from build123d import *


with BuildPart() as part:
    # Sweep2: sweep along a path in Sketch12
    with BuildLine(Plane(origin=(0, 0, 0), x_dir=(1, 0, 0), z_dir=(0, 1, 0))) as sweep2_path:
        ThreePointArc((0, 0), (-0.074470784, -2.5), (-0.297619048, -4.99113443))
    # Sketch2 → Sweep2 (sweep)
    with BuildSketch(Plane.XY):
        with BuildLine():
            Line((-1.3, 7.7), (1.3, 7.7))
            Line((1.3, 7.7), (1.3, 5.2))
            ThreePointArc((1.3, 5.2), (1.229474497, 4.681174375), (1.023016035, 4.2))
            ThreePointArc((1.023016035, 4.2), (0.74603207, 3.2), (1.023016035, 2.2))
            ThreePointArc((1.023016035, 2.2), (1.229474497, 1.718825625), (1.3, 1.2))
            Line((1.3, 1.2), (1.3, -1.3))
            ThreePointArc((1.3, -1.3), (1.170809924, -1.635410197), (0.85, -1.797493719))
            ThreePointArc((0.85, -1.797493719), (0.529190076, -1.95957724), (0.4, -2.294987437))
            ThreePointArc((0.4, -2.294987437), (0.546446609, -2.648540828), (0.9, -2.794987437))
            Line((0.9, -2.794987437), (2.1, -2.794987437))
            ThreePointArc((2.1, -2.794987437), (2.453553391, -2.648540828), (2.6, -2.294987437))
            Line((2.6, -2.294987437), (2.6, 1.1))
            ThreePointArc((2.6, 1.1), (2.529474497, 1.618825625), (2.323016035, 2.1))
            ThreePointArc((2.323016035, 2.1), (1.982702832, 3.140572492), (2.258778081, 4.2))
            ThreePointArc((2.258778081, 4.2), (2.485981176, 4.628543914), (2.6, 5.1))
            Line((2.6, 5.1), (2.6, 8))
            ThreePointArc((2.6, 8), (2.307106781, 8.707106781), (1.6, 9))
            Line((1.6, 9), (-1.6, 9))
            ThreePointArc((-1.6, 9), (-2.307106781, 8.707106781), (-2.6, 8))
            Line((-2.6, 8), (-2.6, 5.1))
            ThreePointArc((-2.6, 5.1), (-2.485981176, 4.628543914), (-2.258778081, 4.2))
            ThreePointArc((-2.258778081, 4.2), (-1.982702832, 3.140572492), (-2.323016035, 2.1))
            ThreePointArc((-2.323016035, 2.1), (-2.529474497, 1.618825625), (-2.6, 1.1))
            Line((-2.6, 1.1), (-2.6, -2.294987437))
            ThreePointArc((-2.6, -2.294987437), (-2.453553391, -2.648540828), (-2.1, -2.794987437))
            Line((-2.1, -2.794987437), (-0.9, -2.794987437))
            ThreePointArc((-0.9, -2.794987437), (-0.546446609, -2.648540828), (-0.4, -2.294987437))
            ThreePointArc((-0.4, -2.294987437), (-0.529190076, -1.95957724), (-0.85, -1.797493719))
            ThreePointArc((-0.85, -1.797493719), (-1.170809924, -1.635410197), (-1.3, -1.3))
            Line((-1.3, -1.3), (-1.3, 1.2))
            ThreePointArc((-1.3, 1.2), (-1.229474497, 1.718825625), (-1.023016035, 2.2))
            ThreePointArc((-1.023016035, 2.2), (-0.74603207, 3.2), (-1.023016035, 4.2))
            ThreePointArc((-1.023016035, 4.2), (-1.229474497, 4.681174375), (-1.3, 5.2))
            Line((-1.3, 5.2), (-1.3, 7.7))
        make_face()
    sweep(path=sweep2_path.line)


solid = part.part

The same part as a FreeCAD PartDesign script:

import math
import FreeCAD as App
import Part
import Sketcher
Q = App.Units.Quantity

doc = App.newDocument("Part")
params = doc.addObject("Spreadsheet::Sheet", "Params")
for row, (alias, value) in enumerate([
    ("sketch1_radius", "1 mm"),
    ("sketch1_radius2", "0.5 mm"),
    ("sketch1_width", "2.6 mm"),
    ("sketch1_width2", "1.2 mm"),
    ("sketch1_width3", "3.2 mm"),
    ("sketch2_radius", "42 mm"),
], start=1):
    params.set(f"A{row}", alias)
    params.set(f"B{row}", "=" + value)
    params.setAlias(f"B{row}", alias)

body = doc.addObject("PartDesign::Body", "Body")

# Sketch on XY plane
sketch1 = body.newObject("Sketcher::SketchObject", "Sketch")
sketch1.AttachmentSupport = (doc.getObject("XY_Plane"), [""])
sketch1.MapMode = "FlatFace"
sketch1.addGeometry(Part.LineSegment(App.Vector(-1.3, 7.7, 0), App.Vector(1.3, 7.7, 0)), False)
sketch1.addGeometry(Part.LineSegment(App.Vector(1.3, 7.7, 0), App.Vector(1.3, 5.2, 0)), False)
sketch1.addGeometry(Part.ArcOfCircle(Part.Circle(App.Vector(-0.643651, 5.2, 0), App.Vector(0, 0, 1), 1.943651), math.radians(-30.963756), math.radians(0)), False)
sketch1.addGeometry(Part.ArcOfCircle(Part.Circle(App.Vector(2.689683, 3.2, 0), App.Vector(0, 0, 1), 1.943651), math.radians(149.036243), math.radians(210.963757)), False)
sketch1.addGeometry(Part.ArcOfCircle(Part.Circle(App.Vector(-0.643651, 1.2, 0), App.Vector(0, 0, 1), 1.943651), math.radians(0), math.radians(30.963756)), False)
sketch1.addGeometry(Part.LineSegment(App.Vector(1.3, 1.2, 0), App.Vector(1.3, -1.3, 0)), False)
sketch1.addGeometry(Part.ArcOfCircle(Part.Circle(App.Vector(0.8, -1.3, 0), App.Vector(0, 0, 1), 0.5), math.radians(-84.260829), math.radians(0)), False)
sketch1.addGeometry(Part.ArcOfCircle(Part.Circle(App.Vector(0.9, -2.294987, 0), App.Vector(0, 0, 1), 0.5), math.radians(95.73917), math.radians(180)), False)
sketch1.addGeometry(Part.ArcOfCircle(Part.Circle(App.Vector(0.9, -2.294987, 0), App.Vector(0, 0, 1), 0.5), math.radians(180), math.radians(270)), False)
sketch1.addGeometry(Part.LineSegment(App.Vector(0.9, -2.794987, 0), App.Vector(2.1, -2.794987, 0)), False)
sketch1.addGeometry(Part.ArcOfCircle(Part.Circle(App.Vector(2.1, -2.294987, 0), App.Vector(0, 0, 1), 0.5), math.radians(-90), math.radians(0)), False)
sketch1.addGeometry(Part.LineSegment(App.Vector(2.6, -2.294987, 0), App.Vector(2.6, 1.1, 0)), False)
sketch1.addGeometry(Part.ArcOfCircle(Part.Circle(App.Vector(0.656349, 1.1, 0), App.Vector(0, 0, 1), 1.943651), math.radians(0), math.radians(30.963756)), False)
sketch1.addGeometry(Part.ArcOfCircle(Part.Circle(App.Vector(3.925445, 3.2, 0), App.Vector(0, 0, 1), 1.943651), math.radians(149.036243), math.radians(214.467963)), False)
sketch1.addGeometry(Part.ArcOfCircle(Part.Circle(App.Vector(0.668567, 5.31759, 0), App.Vector(0, 0, 1), 1.943651), math.radians(-35.099303), math.radians(-6.427686)), False)
sketch1.addGeometry(Part.LineSegment(App.Vector(2.6, 5.1, 0), App.Vector(2.6, 8, 0)), False)
sketch1.addGeometry(Part.ArcOfCircle(Part.Circle(App.Vector(1.6, 8, 0), App.Vector(0, 0, 1), 1), math.radians(0), math.radians(90)), False)
sketch1.addGeometry(Part.LineSegment(App.Vector(1.6, 9, 0), App.Vector(-1.6, 9, 0)), False)
sketch1.addGeometry(Part.ArcOfCircle(Part.Circle(App.Vector(-1.6, 8, 0), App.Vector(0, 0, 1), 1), math.radians(90), math.radians(180)), False)
sketch1.addGeometry(Part.LineSegment(App.Vector(-2.6, 8, 0), App.Vector(-2.6, 5.1, 0)), False)
sketch1.addGeometry(Part.ArcOfCircle(Part.Circle(App.Vector(-0.668567, 5.31759, 0), App.Vector(0, 0, 1), 1.943651), math.radians(-173.572314), math.radians(-144.900697)), False)
sketch1.addGeometry(Part.ArcOfCircle(Part.Circle(App.Vector(-3.925445, 3.2, 0), App.Vector(0, 0, 1), 1.943651), math.radians(-34.467963), math.radians(30.963757)), False)
sketch1.addGeometry(Part.ArcOfCircle(Part.Circle(App.Vector(-0.656349, 1.1, 0), App.Vector(0, 0, 1), 1.943651), math.radians(149.036244), math.radians(180)), False)
sketch1.addGeometry(Part.LineSegment(App.Vector(-2.6, 1.1, 0), App.Vector(-2.6, -2.294987, 0)), False)
sketch1.addGeometry(Part.ArcOfCircle(Part.Circle(App.Vector(-2.1, -2.294987, 0), App.Vector(0, 0, 1), 0.5), math.radians(180), math.radians(270)), False)
sketch1.addGeometry(Part.LineSegment(App.Vector(-2.1, -2.794987, 0), App.Vector(-0.9, -2.794987, 0)), False)
sketch1.addGeometry(Part.ArcOfCircle(Part.Circle(App.Vector(-0.9, -2.294987, 0), App.Vector(0, 0, 1), 0.5), math.radians(-90), math.radians(0)), False)
sketch1.addGeometry(Part.ArcOfCircle(Part.Circle(App.Vector(-0.9, -2.294987, 0), App.Vector(0, 0, 1), 0.5), math.radians(0), math.radians(84.26083)), False)
sketch1.addGeometry(Part.ArcOfCircle(Part.Circle(App.Vector(-0.8, -1.3, 0), App.Vector(0, 0, 1), 0.5), math.radians(180), math.radians(264.260829)), False)
sketch1.addGeometry(Part.LineSegment(App.Vector(-1.3, -1.3, 0), App.Vector(-1.3, 1.2, 0)), False)
sketch1.addGeometry(Part.ArcOfCircle(Part.Circle(App.Vector(0.643651, 1.2, 0), App.Vector(0, 0, 1), 1.943651), math.radians(149.036244), math.radians(180)), False)
sketch1.addGeometry(Part.ArcOfCircle(Part.Circle(App.Vector(-2.689683, 3.2, 0), App.Vector(0, 0, 1), 1.943651), math.radians(-30.963757), math.radians(30.963757)), False)
sketch1.addGeometry(Part.ArcOfCircle(Part.Circle(App.Vector(0.643651, 5.2, 0), App.Vector(0, 0, 1), 1.943651), math.radians(-180), math.radians(-149.036244)), False)
sketch1.addGeometry(Part.LineSegment(App.Vector(-1.3, 5.2, 0), App.Vector(-1.3, 7.7, 0)), False)
sketch1.addConstraint(Sketcher.Constraint("Coincident", 0, 2, 1, 1))
sketch1.addConstraint(Sketcher.Constraint("Tangent", 1, 2, 2, 2))
sketch1.addConstraint(Sketcher.Constraint("Tangent", 2, 1, 3, 1))
sketch1.addConstraint(Sketcher.Constraint("Tangent", 3, 2, 4, 2))
sketch1.addConstraint(Sketcher.Constraint("Tangent", 4, 1, 5, 1))
sketch1.addConstraint(Sketcher.Constraint("Tangent", 5, 2, 6, 2))
sketch1.addConstraint(Sketcher.Constraint("Tangent", 6, 1, 7, 1))
sketch1.addConstraint(Sketcher.Constraint("Tangent", 7, 2, 8, 1))
sketch1.addConstraint(Sketcher.Constraint("Tangent", 8, 2, 9, 1))
sketch1.addConstraint(Sketcher.Constraint("Tangent", 9, 2, 10, 1))
sketch1.addConstraint(Sketcher.Constraint("Tangent", 10, 2, 11, 1))
sketch1.addConstraint(Sketcher.Constraint("Tangent", 11, 2, 12, 1))
sketch1.addConstraint(Sketcher.Constraint("Coincident", 12, 2, 13, 2))
sketch1.addConstraint(Sketcher.Constraint("Coincident", 13, 1, 14, 1))
sketch1.addConstraint(Sketcher.Constraint("Coincident", 14, 2, 15, 1))
sketch1.addConstraint(Sketcher.Constraint("Tangent", 15, 2, 16, 1))
sketch1.addConstraint(Sketcher.Constraint("Tangent", 16, 2, 17, 1))
sketch1.addConstraint(Sketcher.Constraint("Tangent", 17, 2, 18, 1))
sketch1.addConstraint(Sketcher.Constraint("Tangent", 18, 2, 19, 1))
sketch1.addConstraint(Sketcher.Constraint("Coincident", 19, 2, 20, 1))
sketch1.addConstraint(Sketcher.Constraint("Coincident", 20, 2, 21, 2))
sketch1.addConstraint(Sketcher.Constraint("Coincident", 21, 1, 22, 1))
sketch1.addConstraint(Sketcher.Constraint("Tangent", 22, 2, 23, 1))
sketch1.addConstraint(Sketcher.Constraint("Tangent", 23, 2, 24, 1))
sketch1.addConstraint(Sketcher.Constraint("Tangent", 24, 2, 25, 1))
sketch1.addConstraint(Sketcher.Constraint("Tangent", 25, 2, 26, 1))
sketch1.addConstraint(Sketcher.Constraint("Tangent", 26, 2, 27, 1))
sketch1.addConstraint(Sketcher.Constraint("Tangent", 27, 2, 28, 2))
sketch1.addConstraint(Sketcher.Constraint("Tangent", 28, 1, 29, 1))
sketch1.addConstraint(Sketcher.Constraint("Tangent", 29, 2, 30, 2))
sketch1.addConstraint(Sketcher.Constraint("Tangent", 30, 1, 31, 1))
sketch1.addConstraint(Sketcher.Constraint("Tangent", 31, 2, 32, 2))
sketch1.addConstraint(Sketcher.Constraint("Tangent", 32, 1, 33, 1))
sketch1.addConstraint(Sketcher.Constraint("Coincident", 33, 2, 0, 1))
sketch1.addConstraint(Sketcher.Constraint("Horizontal", 0))
sketch1.addConstraint(Sketcher.Constraint("Vertical", 1))
sketch1.addConstraint(Sketcher.Constraint("Vertical", 5))
sketch1.addConstraint(Sketcher.Constraint("Horizontal", 9))
sketch1.addConstraint(Sketcher.Constraint("Vertical", 11))
sketch1.addConstraint(Sketcher.Constraint("Vertical", 15))
sketch1.addConstraint(Sketcher.Constraint("Horizontal", 17))
sketch1.addConstraint(Sketcher.Constraint("Vertical", 19))
sketch1.addConstraint(Sketcher.Constraint("Vertical", 23))
sketch1.addConstraint(Sketcher.Constraint("Horizontal", 25))
sketch1.addConstraint(Sketcher.Constraint("Vertical", 29))
sketch1.addConstraint(Sketcher.Constraint("Vertical", 33))
sketch1.addConstraint(Sketcher.Constraint("Equal", 2, 3))
sketch1.addConstraint(Sketcher.Constraint("Equal", 3, 4))
sketch1.addConstraint(Sketcher.Constraint("Equal", 6, 7))
sketch1.addConstraint(Sketcher.Constraint("Equal", 7, 8))
sketch1.addConstraint(Sketcher.Constraint("Equal", 8, 10))
sketch1.addConstraint(Sketcher.Constraint("Equal", 4, 12))
sketch1.addConstraint(Sketcher.Constraint("Equal", 12, 13))
sketch1.addConstraint(Sketcher.Constraint("Equal", 13, 14))
sketch1.addConstraint(Sketcher.Constraint("Equal", 16, 18))
sketch1.addConstraint(Sketcher.Constraint("Equal", 14, 20))
sketch1.addConstraint(Sketcher.Constraint("Equal", 20, 21))
sketch1.addConstraint(Sketcher.Constraint("Equal", 21, 22))
sketch1.addConstraint(Sketcher.Constraint("Equal", 10, 24))
sketch1.addConstraint(Sketcher.Constraint("Equal", 24, 26))
sketch1.addConstraint(Sketcher.Constraint("Equal", 26, 27))
sketch1.addConstraint(Sketcher.Constraint("Equal", 27, 28))
sketch1.addConstraint(Sketcher.Constraint("Equal", 22, 30))
sketch1.addConstraint(Sketcher.Constraint("Equal", 30, 31))
sketch1.addConstraint(Sketcher.Constraint("Equal", 31, 32))
sketch1.addConstraint(Sketcher.Constraint("Symmetric", 14, 3, 20, 3, -2))
sketch1.addConstraint(Sketcher.Constraint("Symmetric", 13, 3, 21, 3, -2))
sketch1.addConstraint(Sketcher.Constraint("Symmetric", 12, 3, 22, 3, -2))
sketch1.addConstraint(Sketcher.Constraint("Symmetric", 7, 3, 26, 3, -2))
sketch1.addConstraint(Sketcher.Constraint("Symmetric", 4, 3, 30, 3, -2))
sketch1.addConstraint(Sketcher.Constraint("Symmetric", 2, 3, 32, 3, -2))
sketch1.addConstraint(Sketcher.Constraint("Horizontal", 3, 3, 13, 3))
sketch1.addConstraint(Sketcher.Constraint("Horizontal", 27, 3, 7, 2))
sketch1.addConstraint(Sketcher.Constraint("Horizontal", 2, 1, 13, 1))
sketch1.addConstraint(Sketcher.Constraint("Horizontal", 14, 2, 19, 2))
sketch1.addConstraint(Sketcher.Constraint("Horizontal", 23, 2, 26, 2))
sketch1.addConstraint(Sketcher.Constraint("Vertical", 2, 3, 4, 3))
sketch1.addConstraint(Sketcher.Constraint("Vertical", 11, 2, 14, 2))
sketch1.addConstraint(Sketcher.Constraint("Equal", 1, 5))
sketch1.addConstraint(Sketcher.Constraint("Radius", 16, Q("1 mm")))
sketch1.addConstraint(Sketcher.Constraint("Radius", 6, Q("0.5 mm")))
sketch1.addConstraint(Sketcher.Constraint("DistanceX", 0, 1, 0, 2, Q("2.6 mm")))
sketch1.addConstraint(Sketcher.Constraint("DistanceX", 9, 1, 9, 2, Q("1.2 mm")))
sketch1.addConstraint(Sketcher.Constraint("DistanceX", 17, 2, 17, 1, Q("3.2 mm")))
sketch1.addConstraint(Sketcher.Constraint("DistanceY", 1, 2, 1, 1, Q("2.5 mm")))
sketch1.addConstraint(Sketcher.Constraint("DistanceY", 15, 1, 15, 2, Q("2.9 mm")))
sketch1.addConstraint(Sketcher.Constraint("DistanceY", -1, 1, 16, 3, Q("8 mm")))
sketch1.addConstraint(Sketcher.Constraint("DistanceY", 3, 3, 2, 3, Q("2 mm")))
sketch1.addConstraint(Sketcher.Constraint("DistanceY", 11, 2, 12, 2, Q("1 mm")))
sketch1.addConstraint(Sketcher.Constraint("DistanceY", -1, 1, 2, 3, Q("5.2 mm")))
sketch1.addConstraint(Sketcher.Constraint("DistanceY", -1, 1, 12, 3, Q("1.1 mm")))
sketch1.addConstraint(Sketcher.Constraint("Radius", 2, Q("1.943651 mm")))
sketch1.setExpression("Constraints[79]", "Params.sketch1_radius")
sketch1.setExpression("Constraints[80]", "Params.sketch1_radius2")
sketch1.setExpression("Constraints[81]", "Params.sketch1_width")
sketch1.setExpression("Constraints[82]", "Params.sketch1_width2")
sketch1.setExpression("Constraints[83]", "Params.sketch1_width3")

# Sketch on XZ plane
sketch2 = body.newObject("Sketcher::SketchObject", "Sketch001")
sketch2.AttachmentSupport = (doc.getObject("XZ_Plane"), [""])
sketch2.MapMode = "FlatFace"
sketch2.addGeometry(Part.ArcOfCircle(Part.Circle(App.Vector(-42, 0, 0), App.Vector(0, 0, 1), 42), math.radians(0), math.radians(6.82496)), False)
sketch2.addConstraint(Sketcher.Constraint("Coincident", 0, 1, -1, 1))
sketch2.addConstraint(Sketcher.Constraint("PointOnObject", 0, 3, -1))
sketch2.addConstraint(Sketcher.Constraint("Radius", 0, Q("42 mm")))
sketch2.addConstraint(Sketcher.Constraint("DistanceX", 0, 2, -1, 1, Q("0.297619 mm")))
sketch2.setExpression("Constraints[2]", "Params.sketch2_radius")
doc.recompute()

additivepipe = body.newObject("PartDesign::AdditivePipe", "AdditivePipe")
additivepipe.Profile = sketch1
additivepipe.Spine = (sketch2, ["Edge1"])

doc.recompute()
